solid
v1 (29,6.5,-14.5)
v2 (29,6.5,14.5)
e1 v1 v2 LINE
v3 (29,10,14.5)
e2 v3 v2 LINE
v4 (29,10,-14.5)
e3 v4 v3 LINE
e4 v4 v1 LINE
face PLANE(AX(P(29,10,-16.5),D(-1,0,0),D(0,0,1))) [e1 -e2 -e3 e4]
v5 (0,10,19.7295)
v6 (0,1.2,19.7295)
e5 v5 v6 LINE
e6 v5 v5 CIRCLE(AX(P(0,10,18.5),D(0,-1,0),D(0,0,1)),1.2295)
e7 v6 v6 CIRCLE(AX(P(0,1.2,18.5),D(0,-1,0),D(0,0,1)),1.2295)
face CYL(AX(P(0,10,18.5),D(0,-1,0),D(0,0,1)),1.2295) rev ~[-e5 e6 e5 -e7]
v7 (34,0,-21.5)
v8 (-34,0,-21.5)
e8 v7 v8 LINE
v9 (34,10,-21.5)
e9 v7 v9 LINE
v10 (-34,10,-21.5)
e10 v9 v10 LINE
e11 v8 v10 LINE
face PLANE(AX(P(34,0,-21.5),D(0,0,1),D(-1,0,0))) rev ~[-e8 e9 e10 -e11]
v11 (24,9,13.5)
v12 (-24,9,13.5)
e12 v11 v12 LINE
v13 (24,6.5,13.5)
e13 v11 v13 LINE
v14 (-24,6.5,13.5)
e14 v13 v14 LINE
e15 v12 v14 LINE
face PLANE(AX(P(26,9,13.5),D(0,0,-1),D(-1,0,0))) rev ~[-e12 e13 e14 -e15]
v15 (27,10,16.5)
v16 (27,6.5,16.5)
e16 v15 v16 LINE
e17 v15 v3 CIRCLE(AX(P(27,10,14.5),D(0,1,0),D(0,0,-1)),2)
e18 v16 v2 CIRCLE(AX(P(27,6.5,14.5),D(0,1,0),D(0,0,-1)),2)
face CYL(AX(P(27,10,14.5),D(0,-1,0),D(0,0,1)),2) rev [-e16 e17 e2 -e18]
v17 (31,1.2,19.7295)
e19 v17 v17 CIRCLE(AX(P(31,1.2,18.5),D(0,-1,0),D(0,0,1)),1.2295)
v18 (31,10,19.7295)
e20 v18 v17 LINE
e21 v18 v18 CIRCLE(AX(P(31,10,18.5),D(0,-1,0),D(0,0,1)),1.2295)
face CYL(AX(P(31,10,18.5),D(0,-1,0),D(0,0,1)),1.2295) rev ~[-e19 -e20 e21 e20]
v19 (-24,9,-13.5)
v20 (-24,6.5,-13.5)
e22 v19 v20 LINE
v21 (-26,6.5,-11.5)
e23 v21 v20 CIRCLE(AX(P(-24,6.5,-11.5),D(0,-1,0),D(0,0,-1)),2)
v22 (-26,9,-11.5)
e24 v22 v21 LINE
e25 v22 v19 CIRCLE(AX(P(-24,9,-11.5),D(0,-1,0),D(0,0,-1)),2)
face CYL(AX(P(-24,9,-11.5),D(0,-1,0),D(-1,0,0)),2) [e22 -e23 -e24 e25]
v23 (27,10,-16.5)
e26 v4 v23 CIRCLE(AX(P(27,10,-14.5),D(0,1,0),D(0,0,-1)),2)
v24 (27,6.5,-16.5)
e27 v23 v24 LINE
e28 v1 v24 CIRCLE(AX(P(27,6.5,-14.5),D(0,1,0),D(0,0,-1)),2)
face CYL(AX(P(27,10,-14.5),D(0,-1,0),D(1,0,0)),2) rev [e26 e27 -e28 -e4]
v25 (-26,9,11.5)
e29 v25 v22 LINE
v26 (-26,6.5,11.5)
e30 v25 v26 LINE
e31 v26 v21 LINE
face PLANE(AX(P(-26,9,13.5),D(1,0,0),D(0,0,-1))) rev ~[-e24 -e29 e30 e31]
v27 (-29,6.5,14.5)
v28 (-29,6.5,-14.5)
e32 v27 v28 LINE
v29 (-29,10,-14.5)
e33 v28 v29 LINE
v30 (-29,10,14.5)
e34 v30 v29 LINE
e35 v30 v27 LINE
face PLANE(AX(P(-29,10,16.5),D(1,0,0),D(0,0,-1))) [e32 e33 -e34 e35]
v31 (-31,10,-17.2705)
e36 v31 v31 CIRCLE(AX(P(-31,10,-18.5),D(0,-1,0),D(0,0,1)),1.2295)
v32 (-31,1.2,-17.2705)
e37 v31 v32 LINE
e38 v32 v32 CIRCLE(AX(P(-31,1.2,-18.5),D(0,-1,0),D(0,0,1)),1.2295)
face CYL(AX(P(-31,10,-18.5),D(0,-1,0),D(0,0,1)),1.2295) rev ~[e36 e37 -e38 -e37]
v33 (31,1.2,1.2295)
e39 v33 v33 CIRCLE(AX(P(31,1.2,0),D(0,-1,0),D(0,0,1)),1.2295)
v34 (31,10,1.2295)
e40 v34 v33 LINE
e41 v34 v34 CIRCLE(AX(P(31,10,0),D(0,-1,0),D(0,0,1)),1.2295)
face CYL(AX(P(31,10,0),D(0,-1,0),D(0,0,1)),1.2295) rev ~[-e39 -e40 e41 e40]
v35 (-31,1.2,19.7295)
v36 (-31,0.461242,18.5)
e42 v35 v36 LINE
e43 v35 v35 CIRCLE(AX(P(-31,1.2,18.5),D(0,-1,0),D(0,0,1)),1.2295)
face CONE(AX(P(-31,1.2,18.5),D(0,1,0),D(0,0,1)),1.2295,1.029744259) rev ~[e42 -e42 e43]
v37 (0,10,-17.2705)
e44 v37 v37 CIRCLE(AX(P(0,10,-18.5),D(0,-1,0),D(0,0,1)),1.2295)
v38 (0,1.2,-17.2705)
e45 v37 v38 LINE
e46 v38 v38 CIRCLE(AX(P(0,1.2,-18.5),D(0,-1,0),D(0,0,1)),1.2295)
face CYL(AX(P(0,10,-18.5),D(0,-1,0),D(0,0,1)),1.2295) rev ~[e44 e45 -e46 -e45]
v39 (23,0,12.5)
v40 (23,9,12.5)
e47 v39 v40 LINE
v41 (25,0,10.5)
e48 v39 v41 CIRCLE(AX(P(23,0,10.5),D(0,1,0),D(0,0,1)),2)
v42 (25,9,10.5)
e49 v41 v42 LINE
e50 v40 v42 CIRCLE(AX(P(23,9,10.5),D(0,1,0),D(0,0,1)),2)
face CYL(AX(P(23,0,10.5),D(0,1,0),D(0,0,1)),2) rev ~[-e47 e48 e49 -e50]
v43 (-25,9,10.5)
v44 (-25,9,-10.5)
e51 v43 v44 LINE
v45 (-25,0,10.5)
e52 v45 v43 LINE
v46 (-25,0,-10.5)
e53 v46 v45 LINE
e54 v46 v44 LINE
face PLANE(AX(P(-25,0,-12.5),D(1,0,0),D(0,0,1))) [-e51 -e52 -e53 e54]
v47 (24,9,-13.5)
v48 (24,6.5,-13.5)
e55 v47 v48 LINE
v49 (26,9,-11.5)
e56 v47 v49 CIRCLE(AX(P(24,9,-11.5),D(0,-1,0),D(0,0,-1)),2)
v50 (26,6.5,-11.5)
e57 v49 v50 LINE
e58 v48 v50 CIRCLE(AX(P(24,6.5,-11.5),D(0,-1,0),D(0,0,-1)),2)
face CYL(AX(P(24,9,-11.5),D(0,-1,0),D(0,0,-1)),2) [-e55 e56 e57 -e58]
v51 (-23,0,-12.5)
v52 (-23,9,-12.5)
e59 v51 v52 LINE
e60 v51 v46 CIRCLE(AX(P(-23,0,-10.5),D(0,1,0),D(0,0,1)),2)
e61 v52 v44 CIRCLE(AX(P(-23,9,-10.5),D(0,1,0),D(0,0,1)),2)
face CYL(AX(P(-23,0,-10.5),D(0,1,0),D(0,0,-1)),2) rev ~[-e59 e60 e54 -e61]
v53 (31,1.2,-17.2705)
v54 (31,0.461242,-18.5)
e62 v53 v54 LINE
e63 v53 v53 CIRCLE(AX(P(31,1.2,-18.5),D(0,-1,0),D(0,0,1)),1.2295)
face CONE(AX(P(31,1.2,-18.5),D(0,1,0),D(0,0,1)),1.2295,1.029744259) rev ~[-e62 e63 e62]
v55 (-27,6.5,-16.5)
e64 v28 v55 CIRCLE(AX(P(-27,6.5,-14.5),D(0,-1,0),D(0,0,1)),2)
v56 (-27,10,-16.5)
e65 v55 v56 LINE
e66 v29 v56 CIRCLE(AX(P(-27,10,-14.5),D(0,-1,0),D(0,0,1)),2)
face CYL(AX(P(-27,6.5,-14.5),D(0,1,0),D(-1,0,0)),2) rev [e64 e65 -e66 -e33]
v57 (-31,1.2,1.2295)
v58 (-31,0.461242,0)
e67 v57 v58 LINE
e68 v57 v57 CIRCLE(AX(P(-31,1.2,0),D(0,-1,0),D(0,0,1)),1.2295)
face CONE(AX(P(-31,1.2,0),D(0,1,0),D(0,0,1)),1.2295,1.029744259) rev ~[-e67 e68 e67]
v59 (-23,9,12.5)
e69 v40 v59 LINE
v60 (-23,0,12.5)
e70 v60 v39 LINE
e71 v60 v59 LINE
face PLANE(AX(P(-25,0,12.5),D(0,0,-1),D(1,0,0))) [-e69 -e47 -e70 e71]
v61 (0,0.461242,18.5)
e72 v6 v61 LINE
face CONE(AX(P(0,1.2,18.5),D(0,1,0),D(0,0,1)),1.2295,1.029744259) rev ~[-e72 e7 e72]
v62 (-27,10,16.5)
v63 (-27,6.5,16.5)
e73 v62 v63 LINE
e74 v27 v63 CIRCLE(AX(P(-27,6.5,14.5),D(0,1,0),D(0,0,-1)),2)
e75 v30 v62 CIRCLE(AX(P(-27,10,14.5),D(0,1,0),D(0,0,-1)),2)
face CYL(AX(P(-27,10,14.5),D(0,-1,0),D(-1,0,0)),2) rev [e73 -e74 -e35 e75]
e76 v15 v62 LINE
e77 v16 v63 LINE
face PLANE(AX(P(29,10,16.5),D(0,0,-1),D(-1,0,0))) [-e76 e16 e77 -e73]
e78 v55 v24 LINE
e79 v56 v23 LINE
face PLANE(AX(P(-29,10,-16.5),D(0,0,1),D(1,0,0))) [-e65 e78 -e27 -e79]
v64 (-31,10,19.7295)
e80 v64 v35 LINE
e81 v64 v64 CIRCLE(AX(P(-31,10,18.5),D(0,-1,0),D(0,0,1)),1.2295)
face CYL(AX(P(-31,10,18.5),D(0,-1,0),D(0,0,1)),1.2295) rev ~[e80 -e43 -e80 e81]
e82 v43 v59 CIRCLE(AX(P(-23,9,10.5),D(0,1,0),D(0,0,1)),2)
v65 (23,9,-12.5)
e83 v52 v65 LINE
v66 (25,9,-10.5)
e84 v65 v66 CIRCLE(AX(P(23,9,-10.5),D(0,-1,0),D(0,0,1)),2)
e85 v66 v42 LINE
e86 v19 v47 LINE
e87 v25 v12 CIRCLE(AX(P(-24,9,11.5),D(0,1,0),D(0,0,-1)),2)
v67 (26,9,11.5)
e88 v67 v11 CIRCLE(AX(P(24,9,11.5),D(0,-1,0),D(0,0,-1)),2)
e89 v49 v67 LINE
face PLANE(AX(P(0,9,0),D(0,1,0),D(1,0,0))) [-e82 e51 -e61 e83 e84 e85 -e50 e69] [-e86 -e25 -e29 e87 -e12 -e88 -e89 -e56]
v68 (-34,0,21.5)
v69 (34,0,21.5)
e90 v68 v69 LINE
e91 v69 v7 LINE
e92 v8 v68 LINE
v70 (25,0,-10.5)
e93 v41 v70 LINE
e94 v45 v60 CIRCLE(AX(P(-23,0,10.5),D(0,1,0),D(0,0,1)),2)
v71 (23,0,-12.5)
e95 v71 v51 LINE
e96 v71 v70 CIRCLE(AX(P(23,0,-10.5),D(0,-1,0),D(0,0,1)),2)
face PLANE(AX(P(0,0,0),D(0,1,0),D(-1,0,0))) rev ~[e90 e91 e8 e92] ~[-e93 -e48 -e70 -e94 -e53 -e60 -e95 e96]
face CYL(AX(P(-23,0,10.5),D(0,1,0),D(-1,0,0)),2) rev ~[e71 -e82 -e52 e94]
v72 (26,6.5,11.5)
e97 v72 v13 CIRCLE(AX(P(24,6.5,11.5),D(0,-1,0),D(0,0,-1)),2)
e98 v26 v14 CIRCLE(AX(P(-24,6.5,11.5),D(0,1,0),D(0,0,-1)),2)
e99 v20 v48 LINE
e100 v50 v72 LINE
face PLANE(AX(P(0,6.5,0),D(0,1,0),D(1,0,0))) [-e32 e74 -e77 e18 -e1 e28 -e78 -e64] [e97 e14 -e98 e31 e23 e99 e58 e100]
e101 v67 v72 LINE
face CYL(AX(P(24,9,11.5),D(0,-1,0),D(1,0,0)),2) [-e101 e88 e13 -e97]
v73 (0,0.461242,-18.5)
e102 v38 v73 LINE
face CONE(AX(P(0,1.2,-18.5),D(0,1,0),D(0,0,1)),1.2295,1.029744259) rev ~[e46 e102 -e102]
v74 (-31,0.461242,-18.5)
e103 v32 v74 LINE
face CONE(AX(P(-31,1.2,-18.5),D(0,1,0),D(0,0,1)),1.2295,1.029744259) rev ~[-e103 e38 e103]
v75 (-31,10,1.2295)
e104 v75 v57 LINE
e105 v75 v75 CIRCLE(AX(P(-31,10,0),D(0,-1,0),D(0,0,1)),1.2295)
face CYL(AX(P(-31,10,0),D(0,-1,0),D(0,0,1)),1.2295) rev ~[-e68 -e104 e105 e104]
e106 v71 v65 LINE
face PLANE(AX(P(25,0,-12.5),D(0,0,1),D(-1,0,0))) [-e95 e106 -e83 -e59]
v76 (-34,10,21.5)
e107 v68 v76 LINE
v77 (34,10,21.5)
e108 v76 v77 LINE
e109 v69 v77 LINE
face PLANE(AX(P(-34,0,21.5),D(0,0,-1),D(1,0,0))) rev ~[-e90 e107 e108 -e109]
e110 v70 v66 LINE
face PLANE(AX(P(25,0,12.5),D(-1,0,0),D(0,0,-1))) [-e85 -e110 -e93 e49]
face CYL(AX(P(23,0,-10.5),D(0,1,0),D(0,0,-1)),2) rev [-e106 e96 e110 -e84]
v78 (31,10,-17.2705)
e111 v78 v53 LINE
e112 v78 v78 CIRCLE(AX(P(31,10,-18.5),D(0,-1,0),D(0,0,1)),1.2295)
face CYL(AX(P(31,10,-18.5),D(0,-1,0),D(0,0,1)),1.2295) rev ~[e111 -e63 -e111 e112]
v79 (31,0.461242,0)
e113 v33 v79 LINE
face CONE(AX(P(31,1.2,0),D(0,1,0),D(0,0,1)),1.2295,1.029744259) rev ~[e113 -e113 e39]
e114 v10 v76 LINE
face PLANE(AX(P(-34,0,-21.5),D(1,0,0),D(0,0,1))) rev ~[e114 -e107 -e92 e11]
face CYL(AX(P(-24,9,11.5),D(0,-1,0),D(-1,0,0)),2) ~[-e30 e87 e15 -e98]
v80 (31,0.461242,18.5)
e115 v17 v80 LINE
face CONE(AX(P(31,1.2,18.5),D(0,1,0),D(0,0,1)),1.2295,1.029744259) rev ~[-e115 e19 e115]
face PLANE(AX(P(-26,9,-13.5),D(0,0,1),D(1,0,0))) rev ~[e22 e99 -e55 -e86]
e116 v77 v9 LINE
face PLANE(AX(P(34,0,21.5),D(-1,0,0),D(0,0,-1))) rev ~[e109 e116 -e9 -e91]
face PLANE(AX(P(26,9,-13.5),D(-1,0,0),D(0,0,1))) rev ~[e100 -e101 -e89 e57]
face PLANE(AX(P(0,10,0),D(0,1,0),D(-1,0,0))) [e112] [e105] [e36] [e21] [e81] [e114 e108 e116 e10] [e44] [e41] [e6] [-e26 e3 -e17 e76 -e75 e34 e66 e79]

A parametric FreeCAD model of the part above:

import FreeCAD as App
import Part
import Sketcher
Q = App.Units.Quantity


def edges_at(feature, points):
    """Names of the edges that pass closest to the given points."""
    edges = feature.Shape.Edges
    near = lambda p: min(range(len(edges)), key=lambda i: edges[i].distToShape(Part.Vertex(*p))[0])
    return sorted({f"Edge{near(p) + 1}" for p in points})

doc = App.newDocument("Part")
body = doc.addObject("PartDesign::Body", "Body")

# Sketch on XZ plane
sketch1 = doc.addObject("Sketcher::SketchObject", "Sketch")
body.addObject(sketch1)
sketch1.AttachmentSupport = (doc.XZ_Plane, [""])
sketch1.MapMode = "FlatFace"
sketch1.addGeometry([
    Part.LineSegment(App.Vector(34, 22, 0), App.Vector(34, -22, 0)),  # 0
    Part.LineSegment(App.Vector(34, -22, 0), App.Vector(-34, -22, 0)),  # 1
    Part.LineSegment(App.Vector(-34, -22, 0), App.Vector(-34, 22, 0)),  # 2
    Part.LineSegment(App.Vector(-34, 22, 0), App.Vector(34, 22, 0)),  # 3
    Part.LineSegment(App.Vector(-25, -12, 0), App.Vector(25, -12, 0)),  # 4
    Part.LineSegment(App.Vector(25, -12, 0), App.Vector(25, 12, 0)),  # 5
    Part.LineSegment(App.Vector(25, 12, 0), App.Vector(-25, 12, 0)),  # 6
    Part.LineSegment(App.Vector(-25, 12, 0), App.Vector(-25, -12, 0)),  # 7
], False)
sketch1.addConstraint([
    Sketcher.Constraint("Coincident", 0, 2, 1, 1),
    Sketcher.Constraint("Coincident", 1, 2, 2, 1),
    Sketcher.Constraint("Coincident", 2, 2, 3, 1),
    Sketcher.Constraint("Coincident", 3, 2, 0, 1),
    Sketcher.Constraint("Coincident", 4, 2, 5, 1),
    Sketcher.Constraint("Coincident", 5, 2, 6, 1),
    Sketcher.Constraint("Coincident", 6, 2, 7, 1),
    Sketcher.Constraint("Coincident", 7, 2, 4, 1),
    Sketcher.Constraint("Vertical", 0),
    Sketcher.Constraint("Horizontal", 1),
    Sketcher.Constraint("Vertical", 2),
    Sketcher.Constraint("Horizontal", 3),
    Sketcher.Constraint("Horizontal", 4),
    Sketcher.Constraint("Vertical", 5),
    Sketcher.Constraint("Horizontal", 6),
    Sketcher.Constraint("Vertical", 7),
    Sketcher.Constraint("Symmetric", 0, 2, 2, 2, -1, 1),
    Sketcher.Constraint("Symmetric", 4, 2, 6, 2, -1, 1),
    Sketcher.Constraint("DistanceX", 1, 2, 1, 1, Q("68 mm")),
    Sketcher.Constraint("DistanceX", 4, 1, 4, 2, Q("50 mm")),
    Sketcher.Constraint("DistanceY", 0, 2, 0, 1, Q("43 mm")),
    Sketcher.Constraint("DistanceY", 5, 1, 5, 2, Q("25 mm")),
])
pad1 = doc.addObject("PartDesign::Pad", "Pad")
body.addObject(pad1)
pad1.Profile = sketch1
pad1.Length = 10
pad1.Reversed = True

# Sketch on XZ plane
sketch2 = doc.addObject("Sketcher::SketchObject", "Sketch001")
body.addObject(sketch2)
sketch2.AttachmentSupport = (doc.XZ_Plane, [""])
sketch2.MapMode = "FlatFace"
sketch2.AttachmentOffset = App.Placement(App.Vector(0, 0, -10), App.Rotation())
sketch2.addGeometry([
    Part.LineSegment(App.Vector(29, -16, 0), App.Vector(-29, -16, 0)),  # 0
    Part.LineSegment(App.Vector(-29, -16, 0), App.Vector(-29, 16, 0)),  # 1
    Part.LineSegment(App.Vector(-29, 16, 0), App.Vector(29, 16, 0)),  # 2
    Part.LineSegment(App.Vector(29, 16, 0), App.Vector(29, -16, 0)),  # 3
    Part.LineSegment(App.Vector(-25, 12, 0), App.Vector(-25, -12, 0)),  # 4
    Part.LineSegment(App.Vector(-25, -12, 0), App.Vector(25, -12, 0)),  # 5
    Part.LineSegment(App.Vector(25, -12, 0), App.Vector(25, 12, 0)),  # 6
    Part.LineSegment(App.Vector(25, 12, 0), App.Vector(-25, 12, 0)),  # 7
], False)
sketch2.addConstraint([
    Sketcher.Constraint("Coincident", 0, 2, 1, 1),
    Sketcher.Constraint("Coincident", 1, 2, 2, 1),
    Sketcher.Constraint("Coincident", 2, 2, 3, 1),
    Sketcher.Constraint("Coincident", 3, 2, 0, 1),
    Sketcher.Constraint("Coincident", 4, 2, 5, 1),
    Sketcher.Constraint("Coincident", 5, 2, 6, 1),
    Sketcher.Constraint("Coincident", 6, 2, 7, 1),
    Sketcher.Constraint("Coincident", 7, 2, 4, 1),
    Sketcher.Constraint("Horizontal", 0),
    Sketcher.Constraint("Vertical", 1),
    Sketcher.Constraint("Horizontal", 2),
    Sketcher.Constraint("Vertical", 3),
    Sketcher.Constraint("Vertical", 4),
    Sketcher.Constraint("Horizontal", 5),
    Sketcher.Constraint("Vertical", 6),
    Sketcher.Constraint("Horizontal", 7),
    Sketcher.Constraint("Symmetric", 0, 2, 2, 2, -1, 1),
    Sketcher.Constraint("Symmetric", 4, 2, 6, 2, -1, 1),
    Sketcher.Constraint("DistanceX", 0, 2, 4, 2, Q("4 mm")),
    Sketcher.Constraint("DistanceY", 0, 2, 4, 2, Q("4 mm")),
    Sketcher.Constraint("DistanceX", 0, 2, 0, 1, Q("58 mm")),
    Sketcher.Constraint("DistanceY", 1, 1, 1, 2, Q("33 mm")),
])
pocket1 = doc.addObject("PartDesign::Pocket", "Pocket")
body.addObject(pocket1)
pocket1.Profile = sketch2
pocket1.Length = 1
pocket1.Reversed = True

# Sketch on XZ plane
sketch3 = doc.addObject("Sketcher::SketchObject", "Sketch002")
body.addObject(sketch3)
sketch3.AttachmentSupport = (doc.XZ_Plane, [""])
sketch3.MapMode = "FlatFace"
sketch3.AttachmentOffset = App.Placement(App.Vector(0, 0, -9), App.Rotation())
sketch3.addGeometry([
    Part.LineSegment(App.Vector(29, -16, 0), App.Vector(-29, -16, 0)),  # 0
    Part.LineSegment(App.Vector(-29, -16, 0), App.Vector(-29, 16, 0)),  # 1
    Part.LineSegment(App.Vector(-29, 16, 0), App.Vector(29, 16, 0)),  # 2
    Part.LineSegment(App.Vector(29, 16, 0), App.Vector(29, -16, 0)),  # 3
    Part.LineSegment(App.Vector(-26, 14, 0), App.Vector(-26, -14, 0)),  # 4
    Part.LineSegment(App.Vector(-26, -14, 0), App.Vector(26, -14, 0)),  # 5
    Part.LineSegment(App.Vector(26, -14, 0), App.Vector(26, 14, 0)),  # 6
    Part.LineSegment(App.Vector(26, 14, 0), App.Vector(-26, 14, 0)),  # 7
], False)
sketch3.addConstraint([
    Sketcher.Constraint("Coincident", 0, 2, 1, 1),
    Sketcher.Constraint("Coincident", 1, 2, 2, 1),
    Sketcher.Constraint("Coincident", 2, 2, 3, 1),
    Sketcher.Constraint("Coincident", 3, 2, 0, 1),
    Sketcher.Constraint("Coincident", 4, 2, 5, 1),
    Sketcher.Constraint("Coincident", 5, 2, 6, 1),
    Sketcher.Constraint("Coincident", 6, 2, 7, 1),
    Sketcher.Constraint("Coincident", 7, 2, 4, 1),
    Sketcher.Constraint("Horizontal", 0),
    Sketcher.Constraint("Vertical", 1),
    Sketcher.Constraint("Horizontal", 2),
    Sketcher.Constraint("Vertical", 3),
    Sketcher.Constraint("Vertical", 4),
    Sketcher.Constraint("Horizontal", 5),
    Sketcher.Constraint("Vertical", 6),
    Sketcher.Constraint("Horizontal", 7),
    Sketcher.Constraint("Symmetric", 0, 2, 2, 2, -1, 1),
    Sketcher.Constraint("Symmetric", 4, 2, 6, 2, -1, 1),
    Sketcher.Constraint("DistanceX", 0, 2, 4, 2, Q("3 mm")),
    Sketcher.Constraint("DistanceY", 0, 2, 4, 2, Q("3 mm")),
    Sketcher.Constraint("DistanceX", 0, 2, 0, 1, Q("58 mm")),
    Sketcher.Constraint("DistanceY", 1, 1, 1, 2, Q("33 mm")),
])
pocket2 = doc.addObject("PartDesign::Pocket", "Pocket001")
body.addObject(pocket2)
pocket2.Profile = sketch3
pocket2.Length = 2.5
pocket2.Reversed = True
doc.recompute()

fillet = doc.addObject("PartDesign::Fillet", "Fillet")
body.addObject(fillet)
fillet.Base = (pocket2, edges_at(pocket2, [
    (26, 7.75, 13.5),
    (-26, 7.75, 13.5),
    (-26, 7.75, -13.5),
    (26, 7.75, -13.5),
    (25, 4.5, 12.5),
    (25, 4.5, -12.5),
    (-25, 4.5, -12.5),
    (-25, 4.5, 12.5),
]))
fillet.Radius = 2
doc.recompute()

fillet2 = doc.addObject("PartDesign::Fillet", "Fillet001")
body.addObject(fillet2)
fillet2.Base = (fillet, edges_at(fillet, [
    (29, 8.25, 16.5),
    (29, 8.25, -16.5),
    (-29, 8.25, 16.5),
    (-29, 8.25, -16.5),
]))
fillet2.Radius = 2

# Sketch on XZ plane
sketch4 = doc.addObject("Sketcher::SketchObject", "Sketch003")
body.addObject(sketch4)
sketch4.AttachmentSupport = (doc.XZ_Plane, [""])
sketch4.MapMode = "FlatFace"
sketch4.AttachmentOffset = App.Placement(App.Vector(0, 0, -10), App.Rotation())
sketch4.addGeometry([
    Part.Circle(App.Vector(31, 18.5, 0), App.Vector(0, 0, 1), 1.2),  # 0
    Part.Circle(App.Vector(31, 0, 0), App.Vector(0, 0, 1), 1.2),  # 1
    Part.Circle(App.Vector(31, -18.5, 0), App.Vector(0, 0, 1), 1.2),  # 2
    Part.Circle(App.Vector(0, -18.5, 0), App.Vector(0, 0, 1), 1.2),  # 3
    Part.Circle(App.Vector(-31, -18.5, 0), App.Vector(0, 0, 1), 1.2),  # 4
    Part.Circle(App.Vector(-31, 0, 0), App.Vector(0, 0, 1), 1.2),  # 5
    Part.Circle(App.Vector(-31, 18.5, 0), App.Vector(0, 0, 1), 1.2),  # 6
    Part.Circle(App.Vector(0, 18.5, 0), App.Vector(0, 0, 1), 1.2),  # 7
], False)
sketch4.addConstraint([
    Sketcher.Constraint("Equal", 0, 1),
    Sketcher.Constraint("Equal", 1, 2),
    Sketcher.Constraint("Equal", 2, 3),
    Sketcher.Constraint("Equal", 3, 4),
    Sketcher.Constraint("Equal", 4, 5),
    Sketcher.Constraint("Equal", 5, 6),
    Sketcher.Constraint("Equal", 6, 7),
    Sketcher.Constraint("Symmetric", 0, 3, 4, 3, -1, 1),
    Sketcher.Constraint("Symmetric", 1, 3, 5, 3, -1, 1),
    Sketcher.Constraint("Symmetric", 2, 3, 6, 3, -1, 1),
    Sketcher.Constraint("Symmetric", 3, 3, 7, 3, -1, 1),
    Sketcher.Constraint("Symmetric", 2, 3, 4, 3, -2),
    Sketcher.Constraint("PointOnObject", 1, 3, -1),
    Sketcher.Constraint("PointOnObject", 3, 3, -2),
    Sketcher.Constraint("Horizontal", 2, 3, 3, 3),
    Sketcher.Constraint("Vertical", 0, 3, 1, 3),
    Sketcher.Constraint("Diameter", 0, Q("2.459 mm")),
    Sketcher.Constraint("DistanceX", -1, 1, 0, 3, Q("31 mm")),
    Sketcher.Constraint("DistanceY", 2, 3, 0, 3, Q("37 mm")),
])
doc.recompute()
hole = doc.addObject("PartDesign::Hole", "Hole")
body.addObject(hole)
hole.Profile = sketch4
hole.ThreadType = "None"
hole.Diameter = 2.459
hole.DepthType = "Dimension"
hole.Depth = 8.8
hole.DrillPoint = "Angled"
hole.DrillPointAngle = 118
hole.Reversed = True

doc.recompute()
